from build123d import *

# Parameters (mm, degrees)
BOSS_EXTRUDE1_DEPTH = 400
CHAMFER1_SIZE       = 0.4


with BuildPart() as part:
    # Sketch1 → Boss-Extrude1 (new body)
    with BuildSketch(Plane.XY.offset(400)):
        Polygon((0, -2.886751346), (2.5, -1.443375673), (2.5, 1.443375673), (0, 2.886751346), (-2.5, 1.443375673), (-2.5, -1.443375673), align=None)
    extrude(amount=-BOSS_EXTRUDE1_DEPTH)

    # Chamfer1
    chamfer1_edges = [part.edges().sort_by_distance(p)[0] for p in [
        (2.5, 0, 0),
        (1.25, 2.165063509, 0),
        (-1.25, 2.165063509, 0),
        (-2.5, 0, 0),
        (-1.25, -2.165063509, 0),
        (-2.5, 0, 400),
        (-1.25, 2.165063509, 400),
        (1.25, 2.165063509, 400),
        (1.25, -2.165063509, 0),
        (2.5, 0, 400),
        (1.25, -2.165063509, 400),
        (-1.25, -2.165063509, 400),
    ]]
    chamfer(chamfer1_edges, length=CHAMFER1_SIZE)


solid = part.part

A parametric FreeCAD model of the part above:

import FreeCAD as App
import Part
import Sketcher

V = App.Vector
Q = App.Units.Quantity


def edges_at(feature, points):
    """Names of the edges that pass closest to the given points."""
    edges = feature.Shape.Edges
    near = lambda p: min(range(len(edges)), key=lambda i: edges[i].distToShape(Part.Vertex(*p))[0])
    return sorted({f"Edge{near(p) + 1}" for p in points})

doc = App.newDocument("Part")
params = doc.addObject("Spreadsheet::Sheet", "Params")
for row, (alias, value) in enumerate([
    ("pad1_length", "400 mm"),
    ("chamfer_size", "0.4 mm"),
], start=1):
    params.set(f"A{row}", alias)
    params.set(f"B{row}", "=" + value)
    params.setAlias(f"B{row}", alias)

body = doc.addObject("PartDesign::Body", "Body")

# Sketch on XY plane
sketch1 = body.newObject("Sketcher::SketchObject", "Sketch")
sketch1.AttachmentSupport = (doc.getObject("XY_Plane"), [""])
sketch1.MapMode = "FlatFace"
sketch1.AttachmentOffset = App.Placement(V(0, 0, 400), App.Rotation())
sketch1.addGeometry(Part.LineSegment(V(0, -2.886751, 0), V(2.5, -1.443376, 0)), False)
sketch1.addGeometry(Part.LineSegment(V(2.5, -1.443376, 0), V(2.5, 1.443376, 0)), False)
sketch1.addGeometry(Part.LineSegment(V(2.5, 1.443376, 0), V(0, 2.886751, 0)), False)
sketch1.addGeometry(Part.LineSegment(V(0, 2.886751, 0), V(-2.5, 1.443376, 0)), False)
sketch1.addGeometry(Part.LineSegment(V(-2.5, 1.443376, 0), V(-2.5, -1.443376, 0)), False)
sketch1.addGeometry(Part.LineSegment(V(-2.5, -1.443376, 0), V(0, -2.886751, 0)), False)
sketch1.addConstraint(Sketcher.Constraint("Coincident", 0, 2, 1, 1))
sketch1.addConstraint(Sketcher.Constraint("Coincident", 1, 2, 2, 1))
sketch1.addConstraint(Sketcher.Constraint("Coincident", 2, 2, 3, 1))
sketch1.addConstraint(Sketcher.Constraint("Coincident", 3, 2, 4, 1))
sketch1.addConstraint(Sketcher.Constraint("Coincident", 4, 2, 5, 1))
sketch1.addConstraint(Sketcher.Constraint("Coincident", 5, 2, 0, 1))
sketch1.addConstraint(Sketcher.Constraint("Vertical", 1))
sketch1.addConstraint(Sketcher.Constraint("Vertical", 4))
sketch1.addConstraint(Sketcher.Constraint("Symmetric", 0, 2, 3, 2, -1, 1))
sketch1.addConstraint(Sketcher.Constraint("Symmetric", 2, 2, 5, 2, -1, 1))
sketch1.addConstraint(Sketcher.Constraint("PointOnObject", 2, 2, -2))
sketch1.addConstraint(Sketcher.Constraint("Parallel", 2, 5))
sketch1.addConstraint(Sketcher.Constraint("Horizontal", 1, 2, 3, 2))
sketch1.addConstraint(Sketcher.Constraint("Angle", 0, Q("30 deg")))
sketch1.addConstraint(Sketcher.Constraint("DistanceX", 3, 2, 1, 2, Q("5 mm")))
sketch1.addConstraint(Sketcher.Constraint("DistanceY", 1, 1, 1, 2, Q("2.886751 mm")))
pad1 = body.newObject("PartDesign::Pad", "Pad")
pad1.Profile = sketch1
pad1.setExpression("Length", "Params.pad1_length")
pad1.Reversed = True
doc.recompute()

chamfer = body.newObject("PartDesign::Chamfer", "Chamfer")
chamfer.Base = (pad1, edges_at(pad1, [
    (2.5, 0, 0),
    (1.25, 2.165, 0),
    (-1.25, 2.165, 0),
    (-2.5, 0, 0),
    (-1.25, -2.165, 0),
    (-2.5, 0, 400),
    (-1.25, 2.165, 400),
    (1.25, 2.165, 400),
    (1.25, -2.165, 0),
    (2.5, 0, 400),
    (1.25, -2.165, 400),
    (-1.25, -2.165, 400),
]))
chamfer.setExpression("Size", "Params.chamfer_size")

doc.recompute()
